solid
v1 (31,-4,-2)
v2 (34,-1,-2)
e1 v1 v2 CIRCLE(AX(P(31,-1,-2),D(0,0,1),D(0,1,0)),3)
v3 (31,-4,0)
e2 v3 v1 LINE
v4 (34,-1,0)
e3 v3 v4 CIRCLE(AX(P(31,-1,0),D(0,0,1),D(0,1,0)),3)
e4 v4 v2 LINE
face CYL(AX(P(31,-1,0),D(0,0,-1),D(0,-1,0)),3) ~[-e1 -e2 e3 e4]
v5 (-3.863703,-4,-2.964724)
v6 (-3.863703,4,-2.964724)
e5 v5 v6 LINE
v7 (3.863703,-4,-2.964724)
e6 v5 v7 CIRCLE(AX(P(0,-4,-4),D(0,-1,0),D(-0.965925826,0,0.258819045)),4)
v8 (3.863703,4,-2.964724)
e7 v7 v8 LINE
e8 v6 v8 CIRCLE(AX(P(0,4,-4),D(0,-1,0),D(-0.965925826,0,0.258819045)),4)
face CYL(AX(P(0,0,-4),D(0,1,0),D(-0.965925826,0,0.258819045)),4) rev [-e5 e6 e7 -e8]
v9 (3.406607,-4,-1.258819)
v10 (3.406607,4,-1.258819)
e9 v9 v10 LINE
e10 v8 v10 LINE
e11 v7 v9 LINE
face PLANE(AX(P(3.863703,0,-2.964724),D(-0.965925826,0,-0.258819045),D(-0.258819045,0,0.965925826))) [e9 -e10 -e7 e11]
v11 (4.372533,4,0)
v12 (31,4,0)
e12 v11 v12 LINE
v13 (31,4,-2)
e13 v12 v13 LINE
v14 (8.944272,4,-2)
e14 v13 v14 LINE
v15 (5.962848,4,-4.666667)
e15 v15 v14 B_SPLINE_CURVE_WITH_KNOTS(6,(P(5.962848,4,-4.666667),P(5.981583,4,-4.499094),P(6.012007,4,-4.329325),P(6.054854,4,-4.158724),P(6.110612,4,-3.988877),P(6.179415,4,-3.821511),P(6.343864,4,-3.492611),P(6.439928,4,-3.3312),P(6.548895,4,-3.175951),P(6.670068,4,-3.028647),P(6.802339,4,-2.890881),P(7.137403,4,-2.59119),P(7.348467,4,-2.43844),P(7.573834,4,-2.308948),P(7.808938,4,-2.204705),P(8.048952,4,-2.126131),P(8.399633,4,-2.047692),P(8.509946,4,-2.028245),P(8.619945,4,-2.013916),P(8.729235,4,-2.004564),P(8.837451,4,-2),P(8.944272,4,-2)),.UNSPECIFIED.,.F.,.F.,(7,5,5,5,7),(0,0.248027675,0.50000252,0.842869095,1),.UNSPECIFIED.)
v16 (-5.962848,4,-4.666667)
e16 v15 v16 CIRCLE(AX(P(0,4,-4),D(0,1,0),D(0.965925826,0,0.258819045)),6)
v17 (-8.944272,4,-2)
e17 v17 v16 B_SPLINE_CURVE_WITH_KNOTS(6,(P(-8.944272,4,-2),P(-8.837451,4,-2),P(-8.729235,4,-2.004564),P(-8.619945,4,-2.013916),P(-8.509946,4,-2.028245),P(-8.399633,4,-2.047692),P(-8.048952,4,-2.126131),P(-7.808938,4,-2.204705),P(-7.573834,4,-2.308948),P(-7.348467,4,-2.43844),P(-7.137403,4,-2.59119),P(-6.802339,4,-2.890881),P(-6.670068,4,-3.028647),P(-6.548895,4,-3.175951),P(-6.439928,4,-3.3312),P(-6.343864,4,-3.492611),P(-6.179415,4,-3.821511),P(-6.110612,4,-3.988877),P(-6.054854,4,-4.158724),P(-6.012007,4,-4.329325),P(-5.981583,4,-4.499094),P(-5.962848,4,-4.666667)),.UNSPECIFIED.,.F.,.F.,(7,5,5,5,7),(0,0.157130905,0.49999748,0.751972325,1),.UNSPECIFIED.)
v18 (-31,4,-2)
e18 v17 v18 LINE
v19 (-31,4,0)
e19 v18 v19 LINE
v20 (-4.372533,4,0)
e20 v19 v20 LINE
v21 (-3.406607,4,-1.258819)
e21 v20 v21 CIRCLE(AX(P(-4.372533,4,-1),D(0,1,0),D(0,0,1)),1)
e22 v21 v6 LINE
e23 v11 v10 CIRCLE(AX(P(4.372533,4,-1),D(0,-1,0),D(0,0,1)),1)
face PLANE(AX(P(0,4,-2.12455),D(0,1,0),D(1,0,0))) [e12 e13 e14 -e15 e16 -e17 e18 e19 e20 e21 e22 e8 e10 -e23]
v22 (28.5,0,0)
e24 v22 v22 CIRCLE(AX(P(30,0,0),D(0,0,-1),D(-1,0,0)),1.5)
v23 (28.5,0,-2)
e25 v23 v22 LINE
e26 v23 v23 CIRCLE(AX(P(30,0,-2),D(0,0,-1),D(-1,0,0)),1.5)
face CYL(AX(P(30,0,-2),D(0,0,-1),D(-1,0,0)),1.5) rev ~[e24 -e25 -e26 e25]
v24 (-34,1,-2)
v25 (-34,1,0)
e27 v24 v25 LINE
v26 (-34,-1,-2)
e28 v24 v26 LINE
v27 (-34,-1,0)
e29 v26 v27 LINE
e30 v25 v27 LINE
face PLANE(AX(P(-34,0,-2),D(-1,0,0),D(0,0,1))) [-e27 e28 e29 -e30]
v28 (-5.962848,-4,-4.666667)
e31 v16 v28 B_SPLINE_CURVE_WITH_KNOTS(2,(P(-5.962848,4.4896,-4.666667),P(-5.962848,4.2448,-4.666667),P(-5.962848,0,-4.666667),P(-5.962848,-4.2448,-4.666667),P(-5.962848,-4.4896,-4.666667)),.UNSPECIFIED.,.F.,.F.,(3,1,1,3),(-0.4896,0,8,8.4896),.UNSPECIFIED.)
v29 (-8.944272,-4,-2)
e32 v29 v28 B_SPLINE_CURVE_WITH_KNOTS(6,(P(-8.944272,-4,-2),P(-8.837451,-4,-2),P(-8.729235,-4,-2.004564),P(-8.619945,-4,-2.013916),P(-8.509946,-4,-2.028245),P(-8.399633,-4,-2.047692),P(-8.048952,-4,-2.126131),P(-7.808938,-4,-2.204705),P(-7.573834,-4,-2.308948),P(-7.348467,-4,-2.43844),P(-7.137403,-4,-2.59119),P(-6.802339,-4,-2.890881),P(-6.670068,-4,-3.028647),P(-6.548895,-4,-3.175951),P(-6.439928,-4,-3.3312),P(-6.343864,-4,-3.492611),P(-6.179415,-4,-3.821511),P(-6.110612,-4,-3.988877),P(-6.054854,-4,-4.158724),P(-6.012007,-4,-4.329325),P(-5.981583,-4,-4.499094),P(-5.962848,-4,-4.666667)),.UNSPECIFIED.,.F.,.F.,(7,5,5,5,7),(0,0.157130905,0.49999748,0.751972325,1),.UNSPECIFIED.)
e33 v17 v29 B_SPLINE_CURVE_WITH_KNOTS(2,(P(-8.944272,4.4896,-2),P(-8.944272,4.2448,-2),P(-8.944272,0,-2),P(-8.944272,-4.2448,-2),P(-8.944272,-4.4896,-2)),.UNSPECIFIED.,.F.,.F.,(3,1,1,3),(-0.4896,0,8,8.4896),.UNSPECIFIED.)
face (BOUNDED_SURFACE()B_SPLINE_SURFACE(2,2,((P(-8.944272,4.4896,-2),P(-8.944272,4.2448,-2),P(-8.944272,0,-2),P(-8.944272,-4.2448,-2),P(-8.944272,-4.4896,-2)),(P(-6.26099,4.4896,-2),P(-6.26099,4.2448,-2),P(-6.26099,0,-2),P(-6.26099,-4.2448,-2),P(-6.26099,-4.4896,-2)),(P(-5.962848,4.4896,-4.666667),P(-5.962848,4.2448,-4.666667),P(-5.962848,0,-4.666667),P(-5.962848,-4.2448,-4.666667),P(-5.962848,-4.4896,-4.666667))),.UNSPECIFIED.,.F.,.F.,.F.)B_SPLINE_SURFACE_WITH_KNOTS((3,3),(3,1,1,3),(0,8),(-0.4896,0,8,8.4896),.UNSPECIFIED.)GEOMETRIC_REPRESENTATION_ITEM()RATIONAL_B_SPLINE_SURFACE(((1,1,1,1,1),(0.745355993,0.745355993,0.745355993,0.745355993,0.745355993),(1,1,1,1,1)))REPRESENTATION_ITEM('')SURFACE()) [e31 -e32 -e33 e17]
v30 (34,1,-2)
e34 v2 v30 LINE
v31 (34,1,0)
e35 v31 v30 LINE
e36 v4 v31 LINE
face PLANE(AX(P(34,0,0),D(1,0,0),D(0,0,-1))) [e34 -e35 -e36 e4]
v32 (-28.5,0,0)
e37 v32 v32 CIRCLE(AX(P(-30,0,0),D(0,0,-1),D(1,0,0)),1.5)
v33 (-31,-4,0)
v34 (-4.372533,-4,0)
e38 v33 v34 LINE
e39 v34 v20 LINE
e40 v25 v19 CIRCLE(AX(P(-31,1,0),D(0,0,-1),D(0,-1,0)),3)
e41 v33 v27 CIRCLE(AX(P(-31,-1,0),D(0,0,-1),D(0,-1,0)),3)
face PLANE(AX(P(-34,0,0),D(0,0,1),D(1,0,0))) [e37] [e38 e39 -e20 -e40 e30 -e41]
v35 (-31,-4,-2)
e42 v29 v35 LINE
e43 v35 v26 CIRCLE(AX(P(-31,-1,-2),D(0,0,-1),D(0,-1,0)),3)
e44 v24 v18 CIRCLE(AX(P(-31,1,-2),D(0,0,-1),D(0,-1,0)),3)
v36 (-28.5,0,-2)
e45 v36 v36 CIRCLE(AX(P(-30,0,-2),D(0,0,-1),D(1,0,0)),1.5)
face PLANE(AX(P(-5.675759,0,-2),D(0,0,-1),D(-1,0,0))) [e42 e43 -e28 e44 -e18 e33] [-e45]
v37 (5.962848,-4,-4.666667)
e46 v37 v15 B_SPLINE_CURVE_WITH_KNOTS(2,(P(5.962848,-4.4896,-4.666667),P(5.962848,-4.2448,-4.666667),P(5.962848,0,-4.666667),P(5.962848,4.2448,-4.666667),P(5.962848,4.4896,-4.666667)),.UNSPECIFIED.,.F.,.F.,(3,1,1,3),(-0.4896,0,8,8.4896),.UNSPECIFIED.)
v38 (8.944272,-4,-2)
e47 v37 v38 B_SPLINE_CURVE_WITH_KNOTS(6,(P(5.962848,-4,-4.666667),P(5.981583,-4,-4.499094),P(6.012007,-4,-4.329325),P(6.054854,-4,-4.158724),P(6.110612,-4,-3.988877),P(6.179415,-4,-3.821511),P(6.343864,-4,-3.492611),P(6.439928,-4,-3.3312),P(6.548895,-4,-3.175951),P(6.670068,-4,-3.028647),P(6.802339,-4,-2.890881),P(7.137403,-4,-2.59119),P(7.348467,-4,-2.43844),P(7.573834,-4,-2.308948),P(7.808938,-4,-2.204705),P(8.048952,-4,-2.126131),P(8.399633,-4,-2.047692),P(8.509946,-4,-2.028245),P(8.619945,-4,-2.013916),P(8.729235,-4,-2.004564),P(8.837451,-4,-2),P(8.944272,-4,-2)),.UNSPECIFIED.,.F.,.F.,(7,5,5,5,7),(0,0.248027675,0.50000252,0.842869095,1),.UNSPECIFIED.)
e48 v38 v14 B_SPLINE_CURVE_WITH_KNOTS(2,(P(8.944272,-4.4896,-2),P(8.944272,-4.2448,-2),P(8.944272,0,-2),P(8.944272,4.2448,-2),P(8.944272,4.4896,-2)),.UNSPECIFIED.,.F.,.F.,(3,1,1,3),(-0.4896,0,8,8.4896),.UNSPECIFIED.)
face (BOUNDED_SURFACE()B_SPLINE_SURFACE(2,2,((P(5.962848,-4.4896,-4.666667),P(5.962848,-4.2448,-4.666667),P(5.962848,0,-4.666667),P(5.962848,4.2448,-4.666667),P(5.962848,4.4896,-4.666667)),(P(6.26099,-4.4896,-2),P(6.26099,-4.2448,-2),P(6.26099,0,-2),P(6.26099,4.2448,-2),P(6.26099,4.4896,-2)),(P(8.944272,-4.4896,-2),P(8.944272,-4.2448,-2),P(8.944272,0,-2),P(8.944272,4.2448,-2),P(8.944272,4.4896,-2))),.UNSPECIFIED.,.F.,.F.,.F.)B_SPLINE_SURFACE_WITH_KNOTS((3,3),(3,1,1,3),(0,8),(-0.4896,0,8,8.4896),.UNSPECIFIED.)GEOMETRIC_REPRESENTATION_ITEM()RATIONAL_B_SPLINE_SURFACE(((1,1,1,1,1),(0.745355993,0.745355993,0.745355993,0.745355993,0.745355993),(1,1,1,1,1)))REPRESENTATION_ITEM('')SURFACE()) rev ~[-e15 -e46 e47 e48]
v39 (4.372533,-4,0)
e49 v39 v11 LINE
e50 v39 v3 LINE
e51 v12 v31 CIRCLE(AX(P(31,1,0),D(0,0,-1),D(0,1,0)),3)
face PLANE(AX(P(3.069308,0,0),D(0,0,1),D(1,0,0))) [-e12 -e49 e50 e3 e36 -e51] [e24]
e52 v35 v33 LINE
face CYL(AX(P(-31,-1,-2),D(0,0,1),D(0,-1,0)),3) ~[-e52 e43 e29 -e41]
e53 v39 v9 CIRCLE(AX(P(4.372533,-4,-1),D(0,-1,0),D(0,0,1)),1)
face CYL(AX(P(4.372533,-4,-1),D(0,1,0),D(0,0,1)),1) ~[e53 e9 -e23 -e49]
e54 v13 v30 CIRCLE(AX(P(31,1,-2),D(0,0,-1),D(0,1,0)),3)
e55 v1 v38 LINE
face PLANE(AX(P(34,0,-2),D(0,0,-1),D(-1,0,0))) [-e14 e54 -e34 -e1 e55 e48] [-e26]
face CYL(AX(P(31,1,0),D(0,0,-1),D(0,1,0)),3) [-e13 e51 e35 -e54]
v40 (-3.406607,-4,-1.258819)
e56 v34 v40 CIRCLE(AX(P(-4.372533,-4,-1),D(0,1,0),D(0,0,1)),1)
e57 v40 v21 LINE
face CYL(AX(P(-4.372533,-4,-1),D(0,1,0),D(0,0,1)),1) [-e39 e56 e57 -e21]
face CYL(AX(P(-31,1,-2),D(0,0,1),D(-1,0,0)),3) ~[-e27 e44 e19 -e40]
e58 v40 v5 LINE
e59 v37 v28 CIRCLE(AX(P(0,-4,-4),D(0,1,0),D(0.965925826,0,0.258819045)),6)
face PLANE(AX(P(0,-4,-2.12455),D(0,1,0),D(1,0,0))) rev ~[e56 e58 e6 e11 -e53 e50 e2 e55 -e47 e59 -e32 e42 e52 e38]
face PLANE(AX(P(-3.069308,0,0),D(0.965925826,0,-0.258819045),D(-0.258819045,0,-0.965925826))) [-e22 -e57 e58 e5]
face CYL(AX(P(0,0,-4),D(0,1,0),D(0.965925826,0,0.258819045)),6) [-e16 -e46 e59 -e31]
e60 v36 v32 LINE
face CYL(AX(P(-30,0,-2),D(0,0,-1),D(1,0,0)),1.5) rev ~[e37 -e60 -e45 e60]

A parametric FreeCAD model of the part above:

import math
import FreeCAD as App
import Part
import Sketcher
from FreeCAD import Vector
Q = App.Units.Quantity


def edges_at(feature, points):
    """Names of the edges that pass closest to the given points."""
    edges = feature.Shape.Edges
    near = lambda p: min(range(len(edges)), key=lambda i: edges[i].distToShape(Part.Vertex(*p))[0])
    return sorted({f"Edge{near(p) + 1}" for p in points})

doc = App.newDocument("Part")
params = doc.addObject("Spreadsheet::Sheet", "Params")
for row, (alias, value) in enumerate([
    ("sketch1_radius", "4 mm"),
    ("sketch1_radius2", "6 mm"),
    ("sketch1_height", "2 mm"),
    ("pad1_length", "8 mm"),
    ("fillet_radius", "1 mm"),
    ("fillet2_radius", "3 mm"),
    ("sketch2_diameter", "3 mm"),
], start=1):
    params.set(f"A{row}", alias)
    params.set(f"B{row}", "=" + value)
    params.setAlias(f"B{row}", alias)

body = doc.addObject("PartDesign::Body", "Body")

# Sketch on XZ plane
sketch1 = body.newObject("Sketcher::SketchObject", "Sketch")
sketch1.AttachmentSupport = (doc.getObject("XZ_Plane"), [""])
sketch1.MapMode = "FlatFace"
sketch1.addGeometry(Part.LineSegment(Vector(-34, 0, 0), Vector(-3.07, 0, 0)), False)
sketch1.addGeometry(Part.LineSegment(Vector(-3.07, 0, 0), Vector(-3.86, -2.96, 0)), False)
sketch1.addGeometry(Part.ArcOfCircle(Part.Circle(Vector(0, -4, 0), Vector(0, 0, 1), 4), math.radians(165), math.radians(375)), False)
sketch1.addGeometry(Part.LineSegment(Vector(3.86, -2.96, 0), Vector(3.07, 0, 0)), False)
sketch1.addGeometry(Part.LineSegment(Vector(3.07, 0, 0), Vector(34, 0, 0)), False)
sketch1.addGeometry(Part.LineSegment(Vector(34, 0, 0), Vector(34, -2, 0)), False)
sketch1.addGeometry(Part.LineSegment(Vector(34, -2, 0), Vector(5.68, -2, 0)), False)
sketch1.addGeometry(Part.LineSegment(Vector(5.68, -2, 0), Vector(5.8, -2.45, 0)), False)
sketch1.addGeometry(Part.ArcOfCircle(Part.Circle(Vector(0, -4, 0), Vector(0, 0, 1), 6), math.radians(165), math.radians(375)), False)
sketch1.addGeometry(Part.LineSegment(Vector(-5.8, -2.45, 0), Vector(-5.68, -2, 0)), False)
sketch1.addGeometry(Part.LineSegment(Vector(-5.68, -2, 0), Vector(-34, -2, 0)), False)
sketch1.addGeometry(Part.LineSegment(Vector(-34, -2, 0), Vector(-34, 0, 0)), False)
sketch1.addConstraint(Sketcher.Constraint("Coincident", 0, 2, 1, 1))
sketch1.addConstraint(Sketcher.Constraint("Tangent", 1, 2, 2, 1))
sketch1.addConstraint(Sketcher.Constraint("Tangent", 2, 2, 3, 1))
sketch1.addConstraint(Sketcher.Constraint("Coincident", 3, 2, 4, 1))
sketch1.addConstraint(Sketcher.Constraint("Coincident", 4, 2, 5, 1))
sketch1.addConstraint(Sketcher.Constraint("Coincident", 5, 2, 6, 1))
sketch1.addConstraint(Sketcher.Constraint("Coincident", 6, 2, 7, 1))
sketch1.addConstraint(Sketcher.Constraint("Tangent", 7, 2, 8, 2))
sketch1.addConstraint(Sketcher.Constraint("Tangent", 8, 1, 9, 1))
sketch1.addConstraint(Sketcher.Constraint("Coincident", 9, 2, 10, 1))
sketch1.addConstraint(Sketcher.Constraint("Coincident", 10, 2, 11, 1))
sketch1.addConstraint(Sketcher.Constraint("Coincident", 11, 2, 0, 1))
sketch1.addConstraint(Sketcher.Constraint("Horizontal", 0))
sketch1.addConstraint(Sketcher.Constraint("Horizontal", 4))
sketch1.addConstraint(Sketcher.Constraint("Vertical", 5))
sketch1.addConstraint(Sketcher.Constraint("Horizontal", 6))
sketch1.addConstraint(Sketcher.Constraint("Horizontal", 10))
sketch1.addConstraint(Sketcher.Constraint("Vertical", 11))
sketch1.addConstraint(Sketcher.Constraint("Coincident", 8, 3, 2, 3))
sketch1.addConstraint(Sketcher.Constraint("Symmetric", 0, 2, 3, 2, -1, 1))
sketch1.addConstraint(Sketcher.Constraint("Symmetric", 1, 2, 2, 2, -2))
sketch1.addConstraint(Sketcher.Constraint("Symmetric", 6, 2, 9, 2, -2))
sketch1.addConstraint(Sketcher.Constraint("Parallel", 3, 7))
sketch1.addConstraint(Sketcher.Constraint("Equal", 0, 4))
sketch1.addConstraint(Sketcher.Constraint("Radius", 2, 4.0))
sketch1.addConstraint(Sketcher.Constraint("Radius", 8, 6.0))
sketch1.addConstraint(Sketcher.Constraint("DistanceY", 5, 2, 5, 1, 2.0))
sketch1.addConstraint(Sketcher.Constraint("Angle", 1, Q("-105 deg")))
sketch1.addConstraint(Sketcher.Constraint("DistanceY", 2, 3, -1, 1, 4.0))
sketch1.addConstraint(Sketcher.Constraint("DistanceX", -1, 1, 4, 2, 34.0))
sketch1.setExpression("Constraints[24]", "Params.sketch1_radius")
sketch1.setExpression("Constraints[25]", "Params.sketch1_radius2")
sketch1.setExpression("Constraints[26]", "Params.sketch1_height")
pad1 = body.newObject("PartDesign::Pad", "Pad")
pad1.Profile = sketch1
pad1.setExpression("Length", "Params.pad1_length")
pad1.Midplane = True
doc.recompute()

fillet = body.newObject("PartDesign::Fillet", "Fillet")
fillet.Base = (pad1, edges_at(pad1, [(3.069, 0, 0), (-3.069, 0, 0)]))
fillet.setExpression("Radius", "Params.fillet_radius")
doc.recompute()

fillet2 = body.newObject("PartDesign::Fillet", "Fillet001")
fillet2.Base = (fillet, edges_at(fillet, [
    (34, -4, -1),
    (34, 4, -1),
    (5.676, 0, -2),
    (-34, -4, -1),
    (-34, 4, -1),
    (-5.676, 0, -2),
]))
fillet2.setExpression("Radius", "Params.fillet2_radius")

# Sketch on XY plane
sketch2 = body.newObject("Sketcher::SketchObject", "Sketch001")
sketch2.AttachmentSupport = (doc.getObject("XY_Plane"), [""])
sketch2.MapMode = "FlatFace"
sketch2.AttachmentOffset = App.Placement(Vector(0, 0, -2), App.Rotation())
sketch2.addGeometry(Part.Circle(Vector(30, 0, 0), Vector(0, 0, 1), 1.5), False)
sketch2.addGeometry(Part.Circle(Vector(-30, 0, 0), Vector(0, 0, 1), 1.5), False)
sketch2.addConstraint(Sketcher.Constraint("Equal", 0, 1))
sketch2.addConstraint(Sketcher.Constraint("Symmetric", 0, 3, 1, 3, -1, 1))
sketch2.addConstraint(Sketcher.Constraint("PointOnObject", 0, 3, -1))
sketch2.addConstraint(Sketcher.Constraint("Diameter", 0, 3.0))
sketch2.addConstraint(Sketcher.Constraint("DistanceX", -1, 1, 0, 3, 30.0))
sketch2.setExpression("Constraints[3]", "Params.sketch2_diameter")
pocket1 = body.newObject("PartDesign::Pocket", "Pocket")
pocket1.Profile = sketch2
pocket1.Type = "ThroughAll"
pocket1.Reversed = True

doc.recompute()
